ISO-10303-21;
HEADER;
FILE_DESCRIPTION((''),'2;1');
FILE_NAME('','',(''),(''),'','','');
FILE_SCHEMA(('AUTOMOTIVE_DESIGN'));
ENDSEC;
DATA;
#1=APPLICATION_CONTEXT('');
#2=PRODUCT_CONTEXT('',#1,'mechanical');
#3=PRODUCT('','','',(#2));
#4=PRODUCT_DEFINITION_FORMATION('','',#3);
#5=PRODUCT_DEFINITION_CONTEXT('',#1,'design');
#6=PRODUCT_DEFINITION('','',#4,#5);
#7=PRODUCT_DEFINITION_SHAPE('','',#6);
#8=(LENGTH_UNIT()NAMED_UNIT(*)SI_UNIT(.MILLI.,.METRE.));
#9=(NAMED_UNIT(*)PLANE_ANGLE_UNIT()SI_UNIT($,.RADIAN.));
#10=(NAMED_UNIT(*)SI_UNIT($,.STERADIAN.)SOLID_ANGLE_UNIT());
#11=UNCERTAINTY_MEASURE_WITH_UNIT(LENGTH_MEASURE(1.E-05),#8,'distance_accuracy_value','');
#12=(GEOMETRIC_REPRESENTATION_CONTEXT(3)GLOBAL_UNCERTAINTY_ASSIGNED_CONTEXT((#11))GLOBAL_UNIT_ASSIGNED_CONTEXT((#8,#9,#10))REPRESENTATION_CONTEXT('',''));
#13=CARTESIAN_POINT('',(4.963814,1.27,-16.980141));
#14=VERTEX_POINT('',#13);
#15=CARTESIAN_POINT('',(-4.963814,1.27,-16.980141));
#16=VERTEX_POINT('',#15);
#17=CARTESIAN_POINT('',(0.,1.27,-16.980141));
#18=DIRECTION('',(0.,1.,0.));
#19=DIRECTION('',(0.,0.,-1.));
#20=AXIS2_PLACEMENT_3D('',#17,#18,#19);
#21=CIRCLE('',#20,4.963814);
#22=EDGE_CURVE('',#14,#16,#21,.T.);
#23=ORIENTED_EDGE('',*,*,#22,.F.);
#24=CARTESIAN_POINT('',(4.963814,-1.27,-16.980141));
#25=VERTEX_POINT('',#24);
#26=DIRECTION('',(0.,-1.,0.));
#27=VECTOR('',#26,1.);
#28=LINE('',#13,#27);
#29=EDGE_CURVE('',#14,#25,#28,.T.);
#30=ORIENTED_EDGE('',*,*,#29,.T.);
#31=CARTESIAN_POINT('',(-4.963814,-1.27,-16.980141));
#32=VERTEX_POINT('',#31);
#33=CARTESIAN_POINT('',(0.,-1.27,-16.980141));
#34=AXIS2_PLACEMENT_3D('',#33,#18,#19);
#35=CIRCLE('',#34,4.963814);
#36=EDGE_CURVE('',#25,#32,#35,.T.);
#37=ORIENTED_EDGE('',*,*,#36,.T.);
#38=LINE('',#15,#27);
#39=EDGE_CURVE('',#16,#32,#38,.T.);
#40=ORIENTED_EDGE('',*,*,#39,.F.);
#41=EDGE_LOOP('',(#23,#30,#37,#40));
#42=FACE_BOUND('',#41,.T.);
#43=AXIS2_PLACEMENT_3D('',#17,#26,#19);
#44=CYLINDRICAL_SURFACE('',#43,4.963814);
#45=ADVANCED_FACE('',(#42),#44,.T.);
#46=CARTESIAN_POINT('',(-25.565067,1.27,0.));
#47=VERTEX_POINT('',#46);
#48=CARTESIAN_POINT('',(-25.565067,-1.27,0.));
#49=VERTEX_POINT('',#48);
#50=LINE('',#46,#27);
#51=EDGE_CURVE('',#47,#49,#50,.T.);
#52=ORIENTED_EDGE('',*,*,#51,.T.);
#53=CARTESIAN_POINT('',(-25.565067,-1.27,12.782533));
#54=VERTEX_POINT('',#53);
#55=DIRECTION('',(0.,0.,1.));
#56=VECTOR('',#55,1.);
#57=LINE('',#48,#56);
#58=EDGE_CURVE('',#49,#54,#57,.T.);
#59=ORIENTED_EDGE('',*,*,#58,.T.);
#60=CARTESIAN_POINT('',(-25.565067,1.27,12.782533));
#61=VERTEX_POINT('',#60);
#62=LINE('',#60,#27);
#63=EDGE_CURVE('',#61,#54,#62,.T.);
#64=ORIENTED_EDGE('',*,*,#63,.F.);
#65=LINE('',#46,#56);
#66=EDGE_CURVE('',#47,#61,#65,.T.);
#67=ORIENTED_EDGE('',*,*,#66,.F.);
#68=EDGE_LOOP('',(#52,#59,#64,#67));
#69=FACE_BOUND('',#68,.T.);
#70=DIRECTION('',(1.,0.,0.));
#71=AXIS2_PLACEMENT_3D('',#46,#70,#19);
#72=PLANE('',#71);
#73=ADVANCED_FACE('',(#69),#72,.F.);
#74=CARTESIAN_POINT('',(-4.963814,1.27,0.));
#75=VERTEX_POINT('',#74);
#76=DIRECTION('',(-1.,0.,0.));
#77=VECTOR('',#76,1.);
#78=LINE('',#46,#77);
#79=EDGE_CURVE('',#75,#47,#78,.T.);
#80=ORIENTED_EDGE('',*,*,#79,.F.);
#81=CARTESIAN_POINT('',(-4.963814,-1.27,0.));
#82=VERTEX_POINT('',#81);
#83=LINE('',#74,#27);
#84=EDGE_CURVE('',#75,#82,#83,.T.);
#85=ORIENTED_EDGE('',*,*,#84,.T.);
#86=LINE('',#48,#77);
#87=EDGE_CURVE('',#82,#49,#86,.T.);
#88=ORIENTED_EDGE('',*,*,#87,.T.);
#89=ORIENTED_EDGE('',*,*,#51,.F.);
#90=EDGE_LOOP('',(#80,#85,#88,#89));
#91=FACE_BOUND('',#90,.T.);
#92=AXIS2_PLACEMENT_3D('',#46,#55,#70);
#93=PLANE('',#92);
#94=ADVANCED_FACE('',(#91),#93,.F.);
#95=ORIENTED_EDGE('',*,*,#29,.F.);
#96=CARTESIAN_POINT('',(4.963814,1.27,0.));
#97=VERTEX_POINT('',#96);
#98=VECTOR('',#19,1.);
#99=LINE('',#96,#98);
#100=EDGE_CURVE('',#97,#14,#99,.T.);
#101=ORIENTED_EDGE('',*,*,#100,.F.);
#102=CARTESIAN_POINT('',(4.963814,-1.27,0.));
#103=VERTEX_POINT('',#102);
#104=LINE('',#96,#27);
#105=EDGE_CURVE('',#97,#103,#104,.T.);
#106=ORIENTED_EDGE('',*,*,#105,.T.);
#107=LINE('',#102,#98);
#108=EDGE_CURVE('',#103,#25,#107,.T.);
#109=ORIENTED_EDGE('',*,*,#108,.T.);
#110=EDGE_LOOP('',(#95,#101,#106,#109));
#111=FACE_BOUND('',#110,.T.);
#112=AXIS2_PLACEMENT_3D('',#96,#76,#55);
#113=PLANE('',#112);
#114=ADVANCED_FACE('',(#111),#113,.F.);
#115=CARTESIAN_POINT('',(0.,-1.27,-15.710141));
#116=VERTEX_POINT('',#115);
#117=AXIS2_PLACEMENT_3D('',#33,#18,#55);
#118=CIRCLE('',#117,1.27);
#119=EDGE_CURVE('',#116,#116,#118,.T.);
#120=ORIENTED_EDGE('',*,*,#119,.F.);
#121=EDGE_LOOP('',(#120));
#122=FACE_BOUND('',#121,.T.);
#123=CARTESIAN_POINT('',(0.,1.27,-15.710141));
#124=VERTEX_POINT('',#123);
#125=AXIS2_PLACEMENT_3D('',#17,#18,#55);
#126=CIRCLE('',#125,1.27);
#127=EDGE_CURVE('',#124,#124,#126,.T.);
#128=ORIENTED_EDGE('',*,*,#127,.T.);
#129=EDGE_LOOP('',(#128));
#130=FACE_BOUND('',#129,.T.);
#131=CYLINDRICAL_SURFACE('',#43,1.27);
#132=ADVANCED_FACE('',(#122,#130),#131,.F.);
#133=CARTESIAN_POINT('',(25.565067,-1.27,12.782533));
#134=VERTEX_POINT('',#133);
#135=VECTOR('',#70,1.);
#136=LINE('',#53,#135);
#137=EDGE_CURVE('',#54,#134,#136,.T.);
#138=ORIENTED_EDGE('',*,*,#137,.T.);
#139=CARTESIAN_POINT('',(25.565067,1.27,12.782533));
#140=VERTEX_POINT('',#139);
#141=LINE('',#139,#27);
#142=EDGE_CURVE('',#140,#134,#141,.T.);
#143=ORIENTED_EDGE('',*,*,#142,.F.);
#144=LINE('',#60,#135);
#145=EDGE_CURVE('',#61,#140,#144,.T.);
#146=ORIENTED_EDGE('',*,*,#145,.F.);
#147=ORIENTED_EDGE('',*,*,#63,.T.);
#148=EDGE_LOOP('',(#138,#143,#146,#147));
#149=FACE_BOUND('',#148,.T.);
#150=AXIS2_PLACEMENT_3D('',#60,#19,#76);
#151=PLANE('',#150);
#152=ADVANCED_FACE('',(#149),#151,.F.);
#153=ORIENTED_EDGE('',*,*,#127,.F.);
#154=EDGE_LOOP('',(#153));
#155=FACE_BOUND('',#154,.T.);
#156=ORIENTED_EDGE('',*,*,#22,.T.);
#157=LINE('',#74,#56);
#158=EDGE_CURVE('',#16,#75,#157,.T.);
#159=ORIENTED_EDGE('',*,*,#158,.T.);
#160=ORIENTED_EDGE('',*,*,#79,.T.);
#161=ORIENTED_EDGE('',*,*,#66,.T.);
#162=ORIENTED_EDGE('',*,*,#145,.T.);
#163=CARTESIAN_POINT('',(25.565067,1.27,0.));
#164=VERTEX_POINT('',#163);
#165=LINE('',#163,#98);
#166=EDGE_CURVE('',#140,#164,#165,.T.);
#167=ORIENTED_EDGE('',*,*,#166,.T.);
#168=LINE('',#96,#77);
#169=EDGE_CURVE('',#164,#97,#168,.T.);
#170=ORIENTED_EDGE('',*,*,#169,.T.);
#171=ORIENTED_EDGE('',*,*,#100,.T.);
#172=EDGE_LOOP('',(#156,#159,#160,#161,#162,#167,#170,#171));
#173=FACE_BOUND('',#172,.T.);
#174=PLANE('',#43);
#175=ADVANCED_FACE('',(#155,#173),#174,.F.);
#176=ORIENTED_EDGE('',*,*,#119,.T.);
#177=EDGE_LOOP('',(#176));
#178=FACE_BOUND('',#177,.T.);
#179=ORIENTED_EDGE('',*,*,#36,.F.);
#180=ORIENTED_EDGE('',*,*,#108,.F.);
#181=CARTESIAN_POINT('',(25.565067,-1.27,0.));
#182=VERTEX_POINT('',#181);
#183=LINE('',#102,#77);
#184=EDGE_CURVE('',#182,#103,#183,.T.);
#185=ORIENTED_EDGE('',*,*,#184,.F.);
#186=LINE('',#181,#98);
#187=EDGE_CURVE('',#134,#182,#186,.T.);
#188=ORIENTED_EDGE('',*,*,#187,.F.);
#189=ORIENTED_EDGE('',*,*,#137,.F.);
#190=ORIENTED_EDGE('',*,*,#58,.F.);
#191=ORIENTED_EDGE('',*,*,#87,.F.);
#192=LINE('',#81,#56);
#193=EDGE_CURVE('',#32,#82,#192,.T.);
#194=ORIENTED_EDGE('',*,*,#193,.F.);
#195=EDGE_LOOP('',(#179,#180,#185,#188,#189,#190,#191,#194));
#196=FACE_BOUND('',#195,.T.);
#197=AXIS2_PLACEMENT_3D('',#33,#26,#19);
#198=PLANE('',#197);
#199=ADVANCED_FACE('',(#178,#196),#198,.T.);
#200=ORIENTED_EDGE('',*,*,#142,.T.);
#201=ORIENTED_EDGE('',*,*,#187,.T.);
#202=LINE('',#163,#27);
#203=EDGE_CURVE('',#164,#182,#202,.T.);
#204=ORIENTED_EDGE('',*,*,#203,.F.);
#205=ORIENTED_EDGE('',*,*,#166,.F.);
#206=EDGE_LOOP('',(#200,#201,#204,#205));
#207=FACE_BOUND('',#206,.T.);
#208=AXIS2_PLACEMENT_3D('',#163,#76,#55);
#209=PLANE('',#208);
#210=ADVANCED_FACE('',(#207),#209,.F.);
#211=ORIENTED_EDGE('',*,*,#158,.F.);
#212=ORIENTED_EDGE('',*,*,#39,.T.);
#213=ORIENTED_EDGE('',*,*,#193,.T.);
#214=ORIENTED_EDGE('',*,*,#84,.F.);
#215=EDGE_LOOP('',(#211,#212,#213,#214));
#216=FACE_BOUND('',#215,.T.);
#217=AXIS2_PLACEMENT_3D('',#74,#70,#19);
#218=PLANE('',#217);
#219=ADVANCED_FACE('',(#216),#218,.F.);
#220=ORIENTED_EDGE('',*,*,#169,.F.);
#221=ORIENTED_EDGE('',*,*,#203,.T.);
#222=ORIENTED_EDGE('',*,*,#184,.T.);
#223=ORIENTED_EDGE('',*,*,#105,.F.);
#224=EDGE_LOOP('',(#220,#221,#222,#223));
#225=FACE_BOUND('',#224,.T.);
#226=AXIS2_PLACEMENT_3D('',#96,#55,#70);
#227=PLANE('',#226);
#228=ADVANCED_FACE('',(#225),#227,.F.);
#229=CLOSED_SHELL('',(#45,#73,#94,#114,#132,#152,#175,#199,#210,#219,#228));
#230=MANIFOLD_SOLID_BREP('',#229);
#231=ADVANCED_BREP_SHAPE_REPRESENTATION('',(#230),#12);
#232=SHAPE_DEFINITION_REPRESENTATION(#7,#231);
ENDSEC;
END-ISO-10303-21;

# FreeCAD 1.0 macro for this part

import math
import FreeCAD as App
import Part
import Sketcher
from FreeCAD import Vector
Q = App.Units.Quantity

doc = App.newDocument("Part")
params = doc.addObject("Spreadsheet::Sheet", "Params")
for row, (alias, value) in enumerate([
    ("sketch1_diameter", "0.1 in"),
    ("pad1_length", "0.1 in"),
], start=1):
    params.set(f"A{row}", alias)
    params.set(f"B{row}", "=" + value)
    params.setAlias(f"B{row}", alias)

body = doc.addObject("PartDesign::Body", "Body")

# Sketch on XZ plane
sketch1 = body.newObject("Sketcher::SketchObject", "Sketch")
sketch1.AttachmentSupport = (doc.getObject("XZ_Plane"), [""])
sketch1.MapMode = "FlatFace"
sketch1.addGeometry(Part.LineSegment(Vector(25.6, 0, 0), Vector(5, 0, 0)), False)
sketch1.addGeometry(Part.LineSegment(Vector(5, 0, 0), Vector(5, -17, 0)), False)
sketch1.addGeometry(Part.ArcOfCircle(Part.Circle(Vector(0, -17, 0), Vector(0, 0, 1), 5), math.radians(180), math.radians(360)), False)
sketch1.addGeometry(Part.LineSegment(Vector(-5, -17, 0), Vector(-5, 0, 0)), False)
sketch1.addGeometry(Part.LineSegment(Vector(-5, 0, 0), Vector(-25.6, 0, 0)), False)
sketch1.addGeometry(Part.LineSegment(Vector(-25.6, 0, 0), Vector(-25.6, 12.8, 0)), False)
sketch1.addGeometry(Part.LineSegment(Vector(-25.6, 12.8, 0), Vector(25.6, 12.8, 0)), False)
sketch1.addGeometry(Part.LineSegment(Vector(25.6, 12.8, 0), Vector(25.6, 0, 0)), False)
sketch1.addGeometry(Part.Circle(Vector(0, -17, 0), Vector(0, 0, 1), 1.3), False)
sketch1.addConstraint(Sketcher.Constraint("Coincident", 0, 2, 1, 1))
sketch1.addConstraint(Sketcher.Constraint("Tangent", 1, 2, 2, 2))
sketch1.addConstraint(Sketcher.Constraint("Tangent", 2, 1, 3, 1))
sketch1.addConstraint(Sketcher.Constraint("Coincident", 3, 2, 4, 1))
sketch1.addConstraint(Sketcher.Constraint("Coincident", 4, 2, 5, 1))
sketch1.addConstraint(Sketcher.Constraint("Coincident", 5, 2, 6, 1))
sketch1.addConstraint(Sketcher.Constraint("Coincident", 6, 2, 7, 1))
sketch1.addConstraint(Sketcher.Constraint("Coincident", 7, 2, 0, 1))
sketch1.addConstraint(Sketcher.Constraint("Horizontal", 0))
sketch1.addConstraint(Sketcher.Constraint("Vertical", 1))
sketch1.addConstraint(Sketcher.Constraint("Vertical", 3))
sketch1.addConstraint(Sketcher.Constraint("Horizontal", 4))
sketch1.addConstraint(Sketcher.Constraint("Vertical", 5))
sketch1.addConstraint(Sketcher.Constraint("Horizontal", 6))
sketch1.addConstraint(Sketcher.Constraint("Vertical", 7))
sketch1.addConstraint(Sketcher.Constraint("Coincident", 8, 3, 2, 3))
sketch1.addConstraint(Sketcher.Constraint("Symmetric", 0, 2, 3, 2, -1, 1))
sketch1.addConstraint(Sketcher.Constraint("Symmetric", 4, 2, 7, 2, -2))
sketch1.addConstraint(Sketcher.Constraint("Diameter", 8, Q("0.1 in")))
sketch1.addConstraint(Sketcher.Constraint("Radius", 2, 4.963814))
sketch1.addConstraint(Sketcher.Constraint("DistanceY", 1, 2, 1, 1, 16.980141))
sketch1.addConstraint(Sketcher.Constraint("DistanceX", 0, 2, 0, 1, 20.601253))
sketch1.addConstraint(Sketcher.Constraint("DistanceY", 5, 1, 5, 2, 12.782533))
sketch1.setExpression("Constraints[18]", "Params.sketch1_diameter")
pad1 = body.newObject("PartDesign::Pad", "Pad")
pad1.Profile = sketch1
pad1.setExpression("Length", "Params.pad1_length")
pad1.Midplane = True

doc.recompute()
